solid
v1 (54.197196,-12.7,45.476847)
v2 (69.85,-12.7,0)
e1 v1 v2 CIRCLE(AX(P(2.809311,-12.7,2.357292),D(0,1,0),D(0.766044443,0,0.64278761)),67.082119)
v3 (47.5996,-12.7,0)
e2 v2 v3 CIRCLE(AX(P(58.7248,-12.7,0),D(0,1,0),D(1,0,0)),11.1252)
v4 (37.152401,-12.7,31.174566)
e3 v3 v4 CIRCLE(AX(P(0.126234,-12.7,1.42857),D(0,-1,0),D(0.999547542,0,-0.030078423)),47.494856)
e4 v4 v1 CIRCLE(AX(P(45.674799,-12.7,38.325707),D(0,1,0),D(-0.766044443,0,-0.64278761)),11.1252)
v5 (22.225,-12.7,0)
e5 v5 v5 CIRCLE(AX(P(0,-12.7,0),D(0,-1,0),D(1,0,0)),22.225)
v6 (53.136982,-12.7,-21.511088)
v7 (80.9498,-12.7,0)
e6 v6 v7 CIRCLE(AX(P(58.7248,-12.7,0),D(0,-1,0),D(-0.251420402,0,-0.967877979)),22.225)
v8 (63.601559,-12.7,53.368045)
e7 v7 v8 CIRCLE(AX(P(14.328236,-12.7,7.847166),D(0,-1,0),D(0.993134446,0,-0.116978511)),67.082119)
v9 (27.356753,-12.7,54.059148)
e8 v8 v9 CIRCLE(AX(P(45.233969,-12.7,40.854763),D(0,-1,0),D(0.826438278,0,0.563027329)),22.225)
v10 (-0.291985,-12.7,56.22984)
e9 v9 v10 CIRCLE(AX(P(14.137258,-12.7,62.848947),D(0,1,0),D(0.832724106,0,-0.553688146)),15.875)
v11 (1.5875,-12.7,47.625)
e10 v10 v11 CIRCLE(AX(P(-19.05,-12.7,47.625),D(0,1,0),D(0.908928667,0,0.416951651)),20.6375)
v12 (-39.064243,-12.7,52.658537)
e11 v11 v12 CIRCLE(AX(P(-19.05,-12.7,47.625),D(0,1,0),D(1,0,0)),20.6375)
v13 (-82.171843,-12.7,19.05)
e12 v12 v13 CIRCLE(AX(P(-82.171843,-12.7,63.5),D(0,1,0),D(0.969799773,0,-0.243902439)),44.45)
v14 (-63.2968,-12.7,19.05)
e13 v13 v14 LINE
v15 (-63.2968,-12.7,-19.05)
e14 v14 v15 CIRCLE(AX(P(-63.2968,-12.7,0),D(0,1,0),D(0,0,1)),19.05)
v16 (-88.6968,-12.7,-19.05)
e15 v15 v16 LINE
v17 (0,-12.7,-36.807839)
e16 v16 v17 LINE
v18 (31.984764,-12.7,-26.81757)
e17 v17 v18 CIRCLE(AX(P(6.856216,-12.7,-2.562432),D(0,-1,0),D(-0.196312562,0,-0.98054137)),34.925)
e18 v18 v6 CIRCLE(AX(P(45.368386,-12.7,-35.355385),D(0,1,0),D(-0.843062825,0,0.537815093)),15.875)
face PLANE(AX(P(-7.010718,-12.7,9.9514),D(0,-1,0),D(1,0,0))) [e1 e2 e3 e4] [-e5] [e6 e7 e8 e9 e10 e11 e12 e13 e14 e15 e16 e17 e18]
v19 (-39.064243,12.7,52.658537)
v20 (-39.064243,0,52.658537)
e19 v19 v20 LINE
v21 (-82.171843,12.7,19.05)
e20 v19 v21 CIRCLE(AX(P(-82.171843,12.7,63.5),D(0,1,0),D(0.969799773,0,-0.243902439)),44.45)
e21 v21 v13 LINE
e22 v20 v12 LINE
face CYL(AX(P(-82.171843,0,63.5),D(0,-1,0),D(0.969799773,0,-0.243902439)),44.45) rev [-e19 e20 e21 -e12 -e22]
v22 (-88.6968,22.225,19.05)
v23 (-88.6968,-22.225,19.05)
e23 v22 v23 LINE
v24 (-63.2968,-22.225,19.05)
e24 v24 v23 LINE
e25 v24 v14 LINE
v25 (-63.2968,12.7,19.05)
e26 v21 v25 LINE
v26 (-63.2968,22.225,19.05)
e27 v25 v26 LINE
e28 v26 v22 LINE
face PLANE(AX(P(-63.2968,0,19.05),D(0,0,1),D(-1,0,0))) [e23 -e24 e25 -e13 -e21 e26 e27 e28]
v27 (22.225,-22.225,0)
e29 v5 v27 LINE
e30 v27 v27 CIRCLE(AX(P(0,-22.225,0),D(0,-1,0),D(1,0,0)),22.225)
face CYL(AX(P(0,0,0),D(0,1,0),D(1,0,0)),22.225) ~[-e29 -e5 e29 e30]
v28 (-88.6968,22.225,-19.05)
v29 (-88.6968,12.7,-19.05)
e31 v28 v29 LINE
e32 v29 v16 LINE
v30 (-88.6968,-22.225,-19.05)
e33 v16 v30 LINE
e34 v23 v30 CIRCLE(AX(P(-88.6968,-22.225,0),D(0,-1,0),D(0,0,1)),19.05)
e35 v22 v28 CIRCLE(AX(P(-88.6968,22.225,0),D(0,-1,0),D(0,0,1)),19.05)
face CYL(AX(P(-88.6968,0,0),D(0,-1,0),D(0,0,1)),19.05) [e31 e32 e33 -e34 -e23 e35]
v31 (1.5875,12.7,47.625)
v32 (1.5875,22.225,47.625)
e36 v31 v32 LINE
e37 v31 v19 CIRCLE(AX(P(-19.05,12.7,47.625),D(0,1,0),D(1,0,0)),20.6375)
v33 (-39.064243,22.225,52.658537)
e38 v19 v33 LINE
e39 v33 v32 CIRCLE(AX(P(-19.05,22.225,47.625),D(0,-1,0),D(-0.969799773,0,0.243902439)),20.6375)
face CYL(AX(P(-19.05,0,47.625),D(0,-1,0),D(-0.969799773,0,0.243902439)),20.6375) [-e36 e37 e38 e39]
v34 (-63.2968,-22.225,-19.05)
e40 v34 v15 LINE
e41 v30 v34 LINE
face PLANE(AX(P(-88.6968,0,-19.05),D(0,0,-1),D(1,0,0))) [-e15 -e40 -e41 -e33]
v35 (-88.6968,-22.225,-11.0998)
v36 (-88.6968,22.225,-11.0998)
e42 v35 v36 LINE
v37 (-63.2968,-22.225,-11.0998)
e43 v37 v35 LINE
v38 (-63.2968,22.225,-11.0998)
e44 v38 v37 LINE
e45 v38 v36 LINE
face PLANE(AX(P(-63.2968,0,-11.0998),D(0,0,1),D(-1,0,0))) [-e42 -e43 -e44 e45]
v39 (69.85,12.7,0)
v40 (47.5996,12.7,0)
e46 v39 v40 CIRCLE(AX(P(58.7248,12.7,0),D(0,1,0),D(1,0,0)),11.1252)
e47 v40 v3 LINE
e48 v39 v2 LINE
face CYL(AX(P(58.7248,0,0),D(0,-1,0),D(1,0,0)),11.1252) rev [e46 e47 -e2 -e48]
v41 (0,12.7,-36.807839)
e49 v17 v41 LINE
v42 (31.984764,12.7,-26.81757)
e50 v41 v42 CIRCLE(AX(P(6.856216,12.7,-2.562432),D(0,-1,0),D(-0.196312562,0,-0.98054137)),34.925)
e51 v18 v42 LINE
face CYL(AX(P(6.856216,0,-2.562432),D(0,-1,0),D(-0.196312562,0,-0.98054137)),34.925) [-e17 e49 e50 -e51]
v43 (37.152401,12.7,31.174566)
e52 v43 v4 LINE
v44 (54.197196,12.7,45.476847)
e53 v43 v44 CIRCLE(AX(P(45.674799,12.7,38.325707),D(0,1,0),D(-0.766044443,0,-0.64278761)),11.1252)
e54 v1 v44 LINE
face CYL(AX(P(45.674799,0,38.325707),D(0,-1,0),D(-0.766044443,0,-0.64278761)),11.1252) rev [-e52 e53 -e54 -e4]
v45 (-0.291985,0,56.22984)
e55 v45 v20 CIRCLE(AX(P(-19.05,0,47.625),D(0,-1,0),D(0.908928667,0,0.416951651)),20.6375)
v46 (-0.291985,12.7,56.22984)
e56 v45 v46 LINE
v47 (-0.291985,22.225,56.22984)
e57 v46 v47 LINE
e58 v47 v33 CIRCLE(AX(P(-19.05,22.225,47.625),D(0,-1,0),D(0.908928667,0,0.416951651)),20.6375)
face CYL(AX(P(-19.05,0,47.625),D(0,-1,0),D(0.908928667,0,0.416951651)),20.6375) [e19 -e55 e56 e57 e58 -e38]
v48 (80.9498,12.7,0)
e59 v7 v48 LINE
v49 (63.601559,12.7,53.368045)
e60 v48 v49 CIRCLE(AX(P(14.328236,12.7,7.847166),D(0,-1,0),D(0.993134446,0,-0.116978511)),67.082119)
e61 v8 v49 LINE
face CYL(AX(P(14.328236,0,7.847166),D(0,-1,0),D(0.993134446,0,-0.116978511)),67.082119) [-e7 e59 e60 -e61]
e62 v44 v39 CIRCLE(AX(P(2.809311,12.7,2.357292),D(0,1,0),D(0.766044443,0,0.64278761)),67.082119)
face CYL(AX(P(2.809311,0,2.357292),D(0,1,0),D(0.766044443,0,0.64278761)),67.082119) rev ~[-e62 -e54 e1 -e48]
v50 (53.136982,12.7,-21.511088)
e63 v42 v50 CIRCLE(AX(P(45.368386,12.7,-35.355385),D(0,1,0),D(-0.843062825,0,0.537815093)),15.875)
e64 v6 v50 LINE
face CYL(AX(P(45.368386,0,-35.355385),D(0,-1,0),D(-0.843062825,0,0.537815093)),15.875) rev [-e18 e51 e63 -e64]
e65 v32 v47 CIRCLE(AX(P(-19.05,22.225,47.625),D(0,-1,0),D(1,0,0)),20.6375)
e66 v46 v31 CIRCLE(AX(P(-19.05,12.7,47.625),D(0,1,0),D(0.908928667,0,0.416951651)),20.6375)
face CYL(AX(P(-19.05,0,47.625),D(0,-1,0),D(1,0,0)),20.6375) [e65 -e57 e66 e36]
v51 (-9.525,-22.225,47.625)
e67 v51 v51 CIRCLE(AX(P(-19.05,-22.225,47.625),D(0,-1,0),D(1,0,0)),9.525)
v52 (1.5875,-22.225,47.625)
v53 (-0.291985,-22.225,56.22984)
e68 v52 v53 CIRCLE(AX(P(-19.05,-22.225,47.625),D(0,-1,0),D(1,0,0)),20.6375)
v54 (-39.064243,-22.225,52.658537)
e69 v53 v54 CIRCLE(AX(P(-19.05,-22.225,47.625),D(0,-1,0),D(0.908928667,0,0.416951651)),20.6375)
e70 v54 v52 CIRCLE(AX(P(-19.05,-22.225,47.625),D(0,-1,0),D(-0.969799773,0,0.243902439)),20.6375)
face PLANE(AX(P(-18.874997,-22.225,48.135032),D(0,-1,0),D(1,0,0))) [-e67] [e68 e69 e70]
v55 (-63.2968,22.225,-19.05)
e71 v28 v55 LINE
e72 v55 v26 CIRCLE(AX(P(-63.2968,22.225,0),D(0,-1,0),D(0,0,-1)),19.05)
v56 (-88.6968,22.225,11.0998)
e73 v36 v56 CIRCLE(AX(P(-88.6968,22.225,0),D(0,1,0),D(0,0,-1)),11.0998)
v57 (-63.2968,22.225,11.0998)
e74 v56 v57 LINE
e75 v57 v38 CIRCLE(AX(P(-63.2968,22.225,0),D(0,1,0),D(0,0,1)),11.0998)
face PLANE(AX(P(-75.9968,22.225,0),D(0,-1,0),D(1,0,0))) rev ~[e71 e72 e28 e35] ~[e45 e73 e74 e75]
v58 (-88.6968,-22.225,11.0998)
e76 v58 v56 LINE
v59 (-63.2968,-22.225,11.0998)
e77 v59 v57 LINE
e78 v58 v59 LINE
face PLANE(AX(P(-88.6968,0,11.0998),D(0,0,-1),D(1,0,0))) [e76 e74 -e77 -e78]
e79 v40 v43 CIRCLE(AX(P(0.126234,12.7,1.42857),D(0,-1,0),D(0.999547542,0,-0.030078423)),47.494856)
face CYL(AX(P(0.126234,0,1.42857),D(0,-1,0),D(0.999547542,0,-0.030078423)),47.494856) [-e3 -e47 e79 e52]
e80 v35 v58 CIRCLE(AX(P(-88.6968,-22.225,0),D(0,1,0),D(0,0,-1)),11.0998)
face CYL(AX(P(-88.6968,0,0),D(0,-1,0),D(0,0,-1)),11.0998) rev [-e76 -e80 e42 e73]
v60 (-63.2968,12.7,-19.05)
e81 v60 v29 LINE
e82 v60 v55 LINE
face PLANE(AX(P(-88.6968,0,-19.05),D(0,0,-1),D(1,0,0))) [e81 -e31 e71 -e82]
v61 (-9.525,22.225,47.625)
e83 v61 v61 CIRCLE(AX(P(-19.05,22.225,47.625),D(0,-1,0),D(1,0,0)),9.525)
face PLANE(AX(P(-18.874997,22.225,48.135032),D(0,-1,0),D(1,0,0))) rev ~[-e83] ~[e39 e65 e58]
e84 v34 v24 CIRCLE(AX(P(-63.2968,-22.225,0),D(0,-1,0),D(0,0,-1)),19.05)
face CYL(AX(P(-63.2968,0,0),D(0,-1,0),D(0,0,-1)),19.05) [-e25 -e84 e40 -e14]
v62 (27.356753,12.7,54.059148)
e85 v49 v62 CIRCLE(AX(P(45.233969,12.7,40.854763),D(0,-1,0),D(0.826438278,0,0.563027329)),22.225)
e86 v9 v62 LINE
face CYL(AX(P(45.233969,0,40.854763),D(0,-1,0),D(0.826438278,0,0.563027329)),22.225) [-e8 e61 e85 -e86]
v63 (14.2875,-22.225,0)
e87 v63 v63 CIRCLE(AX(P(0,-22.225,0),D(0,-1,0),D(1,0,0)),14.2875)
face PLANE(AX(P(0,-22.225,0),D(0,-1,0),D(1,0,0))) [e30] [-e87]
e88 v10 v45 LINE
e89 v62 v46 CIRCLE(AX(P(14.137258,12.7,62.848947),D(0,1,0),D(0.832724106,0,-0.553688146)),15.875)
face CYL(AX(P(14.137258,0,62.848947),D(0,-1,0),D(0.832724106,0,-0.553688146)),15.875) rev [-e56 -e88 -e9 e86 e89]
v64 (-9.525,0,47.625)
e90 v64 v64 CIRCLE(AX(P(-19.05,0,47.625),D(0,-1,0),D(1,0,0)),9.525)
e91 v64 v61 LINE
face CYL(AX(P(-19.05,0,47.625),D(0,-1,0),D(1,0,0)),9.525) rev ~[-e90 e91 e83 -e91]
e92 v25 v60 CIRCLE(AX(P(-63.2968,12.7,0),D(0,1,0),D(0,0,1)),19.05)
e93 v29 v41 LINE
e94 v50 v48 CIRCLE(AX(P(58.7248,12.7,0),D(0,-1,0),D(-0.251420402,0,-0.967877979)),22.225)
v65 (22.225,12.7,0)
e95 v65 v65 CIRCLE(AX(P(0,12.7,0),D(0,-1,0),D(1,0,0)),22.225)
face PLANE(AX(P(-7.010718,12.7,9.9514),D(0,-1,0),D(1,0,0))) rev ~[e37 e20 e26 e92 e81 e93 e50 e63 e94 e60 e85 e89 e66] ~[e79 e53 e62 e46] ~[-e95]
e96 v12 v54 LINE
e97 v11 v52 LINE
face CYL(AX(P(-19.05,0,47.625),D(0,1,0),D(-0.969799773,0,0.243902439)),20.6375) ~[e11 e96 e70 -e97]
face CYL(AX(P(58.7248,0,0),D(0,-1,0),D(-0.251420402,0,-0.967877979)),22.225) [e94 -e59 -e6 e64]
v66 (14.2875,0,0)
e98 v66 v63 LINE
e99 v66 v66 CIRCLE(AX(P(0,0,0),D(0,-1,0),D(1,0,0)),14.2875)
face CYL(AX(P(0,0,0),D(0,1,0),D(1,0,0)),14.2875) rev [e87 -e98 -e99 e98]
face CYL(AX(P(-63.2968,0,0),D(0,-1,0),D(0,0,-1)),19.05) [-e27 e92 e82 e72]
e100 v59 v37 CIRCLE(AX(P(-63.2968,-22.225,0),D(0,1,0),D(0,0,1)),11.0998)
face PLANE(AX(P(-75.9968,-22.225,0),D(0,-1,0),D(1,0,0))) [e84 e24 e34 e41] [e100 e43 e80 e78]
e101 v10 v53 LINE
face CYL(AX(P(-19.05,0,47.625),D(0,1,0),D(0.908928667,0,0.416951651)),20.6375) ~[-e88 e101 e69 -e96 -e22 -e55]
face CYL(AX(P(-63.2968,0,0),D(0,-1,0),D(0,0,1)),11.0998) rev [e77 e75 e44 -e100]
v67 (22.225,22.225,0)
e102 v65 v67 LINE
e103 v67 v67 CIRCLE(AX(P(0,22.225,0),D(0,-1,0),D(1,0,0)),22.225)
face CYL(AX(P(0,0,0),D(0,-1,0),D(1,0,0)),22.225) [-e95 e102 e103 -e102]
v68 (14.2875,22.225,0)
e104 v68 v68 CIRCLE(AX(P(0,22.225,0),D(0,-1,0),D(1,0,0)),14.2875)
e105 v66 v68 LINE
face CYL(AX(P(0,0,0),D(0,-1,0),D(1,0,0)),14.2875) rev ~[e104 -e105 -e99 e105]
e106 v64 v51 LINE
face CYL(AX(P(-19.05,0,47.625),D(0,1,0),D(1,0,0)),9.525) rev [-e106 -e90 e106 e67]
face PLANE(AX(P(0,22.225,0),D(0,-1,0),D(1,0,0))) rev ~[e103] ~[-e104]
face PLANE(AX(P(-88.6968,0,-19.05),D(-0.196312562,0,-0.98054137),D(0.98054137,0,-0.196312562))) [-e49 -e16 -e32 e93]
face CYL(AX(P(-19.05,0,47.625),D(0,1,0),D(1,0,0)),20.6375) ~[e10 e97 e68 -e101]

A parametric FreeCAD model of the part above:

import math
import FreeCAD as App
import Part
import Sketcher
from FreeCAD import Vector
Q = App.Units.Quantity

doc = App.newDocument("Part")
body = doc.addObject("PartDesign::Body", "Body")

# Sketch on XZ plane
sketch1 = body.newObject("Sketcher::SketchObject", "Sketch")
sketch1.AttachmentSupport = (doc.getObject("XZ_Plane"), [""])
sketch1.MapMode = "FlatFace"
sketch1.addGeometry([
    Part.ArcOfCircle(Part.Circle(Vector(-19.05, 47.625, 0), Vector(0, 0, 1), 20.6375), math.radians(0), math.radians(24.642281)),  # 0
    Part.ArcOfCircle(Part.Circle(Vector(-19.05, 47.625, 0), Vector(0, 0, 1), 20.6375), math.radians(165.883019), math.radians(360)),  # 1
    Part.ArcOfCircle(Part.Circle(Vector(-82.171843, 63.5, 0), Vector(0, 0, 1), 44.45), math.radians(-90), math.radians(-14.116981)),  # 2
    Part.LineSegment(Vector(-82.171843, 19.05, 0), Vector(-63.2968, 19.05, 0)),  # 3
    Part.ArcOfCircle(Part.Circle(Vector(-63.2968, 0, 0), Vector(0, 0, 1), 19.05), math.radians(-90), math.radians(90)),  # 4
    Part.LineSegment(Vector(-63.2968, -19.05, 0), Vector(-88.6968, -19.05, 0)),  # 5
    Part.LineSegment(Vector(-88.6968, -19.05, 0), Vector(0, -36.807839, 0)),  # 6
    Part.ArcOfCircle(Part.Circle(Vector(6.856216, -2.562432, 0), Vector(0, 0, 1), 34.925), math.radians(-101.32141), math.radians(-43.986762)),  # 7
    Part.ArcOfCircle(Part.Circle(Vector(45.368386, -35.355385, 0), Vector(0, 0, 1), 15.875), math.radians(60.701452), math.radians(147.464974)),  # 8
    Part.ArcOfCircle(Part.Circle(Vector(58.7248, 0, 0), Vector(0, 0, 1), 22.225), math.radians(-104.56158), math.radians(0)),  # 9
    Part.ArcOfCircle(Part.Circle(Vector(14.328236, 7.847166, 0), Vector(0, 0, 1), 67.082119), math.radians(-6.717756), math.radians(42.733121)),  # 10
    Part.ArcOfCircle(Part.Circle(Vector(45.233969, 40.854763, 0), Vector(0, 0, 1), 22.225), math.radians(34.265417), math.radians(143.549857)),  # 11
    Part.ArcOfCircle(Part.Circle(Vector(14.137258, 62.848947, 0), Vector(0, 0, 1), 15.875), math.radians(-155.357719), math.radians(-33.620405)),  # 12
    Part.Circle(Vector(0, 0, 0), Vector(0, 0, 1), 22.225),  # 13
    Part.ArcOfCircle(Part.Circle(Vector(45.674799, 38.325707, 0), Vector(0, 0, 1), 11.1252), math.radians(40), math.radians(220)),  # 14
    Part.ArcOfCircle(Part.Circle(Vector(2.809311, 2.357292, 0), Vector(0, 0, 1), 67.082119), math.radians(-2.013811), math.radians(40)),  # 15
    Part.ArcOfCircle(Part.Circle(Vector(58.7248, 0, 0), Vector(0, 0, 1), 11.1252), math.radians(180), math.radians(360)),  # 16
    Part.ArcOfCircle(Part.Circle(Vector(0.126234, 1.42857, 0), Vector(0, 0, 1), 47.494856), math.radians(-1.723627), math.radians(38.777617)),  # 17
], False)
sketch1.addConstraint([
    Sketcher.Constraint("Tangent", 0, 1, 1, 2),
    Sketcher.Constraint("Tangent", 1, 1, 2, 2),
    Sketcher.Constraint("Tangent", 2, 1, 3, 1),
    Sketcher.Constraint("Tangent", 3, 2, 4, 2),
    Sketcher.Constraint("Tangent", 4, 1, 5, 1),
    Sketcher.Constraint("Coincident", 5, 2, 6, 1),
    Sketcher.Constraint("Tangent", 6, 2, 7, 1),
    Sketcher.Constraint("Coincident", 7, 2, 8, 2),
    Sketcher.Constraint("Coincident", 8, 1, 9, 1),
    Sketcher.Constraint("Coincident", 9, 2, 10, 1),
    Sketcher.Constraint("Coincident", 10, 2, 11, 1),
    Sketcher.Constraint("Coincident", 11, 2, 12, 2),
    Sketcher.Constraint("Tangent", 12, 1, 0, 2),
    Sketcher.Constraint("Tangent", 14, 1, 15, 2),
    Sketcher.Constraint("Coincident", 15, 1, 16, 2),
    Sketcher.Constraint("Coincident", 16, 1, 17, 1),
    Sketcher.Constraint("Coincident", 17, 2, 14, 2),
    Sketcher.Constraint("Horizontal", 3),
    Sketcher.Constraint("Horizontal", 5),
    Sketcher.Constraint("Coincident", 13, 3, -1, 1),
    Sketcher.Constraint("Coincident", 16, 3, 9, 3),
    Sketcher.Constraint("Equal", 0, 1),
    Sketcher.Constraint("Equal", 9, 11),
    Sketcher.Constraint("Equal", 8, 12),
    Sketcher.Constraint("Equal", 11, 13),
    Sketcher.Constraint("Equal", 10, 15),
    Sketcher.Constraint("Equal", 14, 16),
    Sketcher.Constraint("PointOnObject", 4, 3, -1),
    Sketcher.Constraint("PointOnObject", 9, 3, -1),
    Sketcher.Constraint("PointOnObject", 6, 2, -2),
    Sketcher.Constraint("PointOnObject", 9, 2, -1),
    Sketcher.Constraint("PointOnObject", 15, 1, -1),
    Sketcher.Constraint("PointOnObject", 16, 1, -1),
    Sketcher.Constraint("Horizontal", 1, 3, 0, 1),
    Sketcher.Constraint("Diameter", 13, Q("1.75 in")),
    Sketcher.Constraint("DistanceX", 5, 2, 5, 1, Q("1 in")),
    Sketcher.Constraint("Radius", 2, Q("1.75 in")),
    Sketcher.Constraint("Radius", 4, Q("0.75 in")),
    Sketcher.Constraint("Radius", 0, Q("0.8125 in")),
    Sketcher.Constraint("Radius", 7, Q("1.375 in")),
    Sketcher.Constraint("Radius", 8, Q("0.625 in")),
    Sketcher.Constraint("Radius", 14, Q("0.438 in")),
    Sketcher.Constraint("DistanceX", 0, 3, -1, 1, Q("0.75 in")),
    Sketcher.Constraint("DistanceX", -1, 1, 15, 1, Q("2.75 in")),
    Sketcher.Constraint("DistanceY", -1, 1, 0, 3, Q("1.875 in")),
    Sketcher.Constraint("DistanceX", 4, 3, -1, 1, Q("2.492 in")),
    Sketcher.Constraint("Radius", 10, Q("67.082119 mm")),
    Sketcher.Constraint("Radius", 17, Q("47.494856 mm")),
    Sketcher.Constraint("DistanceX", -1, 1, 14, 3, Q("45.674799 mm")),
    Sketcher.Constraint("DistanceX", -1, 1, 17, 2, Q("37.152401 mm")),
    Sketcher.Constraint("DistanceY", 7, 3, 10, 3, Q("10.409598 mm")),
    Sketcher.Constraint("DistanceX", 1, 1, 12, 3, Q("53.201501 mm")),
    Sketcher.Constraint("DistanceX", 12, 3, 10, 2, Q("49.464302 mm")),
    Sketcher.Constraint("DistanceY", 11, 2, 12, 3, Q("8.789799 mm")),
    Sketcher.Constraint("DistanceY", 14, 1, 11, 2, Q("8.5823 mm")),
    Sketcher.Constraint("DistanceY", 10, 3, 17, 2, Q("23.3274 mm")),
    Sketcher.Constraint("DistanceY", 7, 2, -1, 1, Q("26.81757 mm")),
    Sketcher.Constraint("DistanceX", -1, 1, 8, 1, Q("53.136982 mm")),
])
pad1 = body.newObject("PartDesign::Pad", "Pad")
pad1.Profile = sketch1
pad1.Length = Q("1 in")
pad1.Midplane = True

# Sketch on XZ plane
sketch2 = body.newObject("Sketcher::SketchObject", "Sketch001")
sketch2.AttachmentSupport = (doc.getObject("XZ_Plane"), [""])
sketch2.MapMode = "FlatFace"
sketch2.addGeometry([
    Part.ArcOfCircle(Part.Circle(Vector(-19.05, 47.625, 0), Vector(0, 0, 1), 20.6375), math.radians(165.883019), math.radians(360)),  # 0
    Part.ArcOfCircle(Part.Circle(Vector(-19.05, 47.625, 0), Vector(0, 0, 1), 20.6375), math.radians(0), math.radians(24.642281)),  # 1
    Part.ArcOfCircle(Part.Circle(Vector(-19.05, 47.625, 0), Vector(0, 0, 1), 20.6375), math.radians(24.642281), math.radians(165.883019)),  # 2
    Part.Circle(Vector(-19.05, 47.625, 0), Vector(0, 0, 1), 9.525),  # 3
    Part.Circle(Vector(0, 0, 0), Vector(0, 0, 1), 22.225),  # 4
    Part.Circle(Vector(0, 0, 0), Vector(0, 0, 1), 14.2875),  # 5
    Part.LineSegment(Vector(-63.2968, 19.05, 0), Vector(-88.6968, 19.05, 0)),  # 6
    Part.ArcOfCircle(Part.Circle(Vector(-88.6968, 0, 0), Vector(0, 0, 1), 19.05), math.radians(90), math.radians(270)),  # 7
    Part.LineSegment(Vector(-88.6968, -19.05, 0), Vector(-63.2968, -19.05, 0)),  # 8
    Part.ArcOfCircle(Part.Circle(Vector(-63.2968, 0, 0), Vector(0, 0, 1), 19.05), math.radians(-90), math.radians(90)),  # 9
    Part.ArcOfCircle(Part.Circle(Vector(-63.2968, 0, 0), Vector(0, 0, 1), 11.0998), math.radians(-90), math.radians(90)),  # 10
    Part.LineSegment(Vector(-63.2968, -11.0998, 0), Vector(-88.6968, -11.0998, 0)),  # 11
    Part.ArcOfCircle(Part.Circle(Vector(-88.6968, 0, 0), Vector(0, 0, 1), 11.0998), math.radians(90), math.radians(270)),  # 12
    Part.LineSegment(Vector(-88.6968, 11.0998, 0), Vector(-63.2968, 11.0998, 0)),  # 13
], False)
sketch2.addConstraint([
    Sketcher.Constraint("Tangent", 0, 2, 1, 1),
    Sketcher.Constraint("Tangent", 1, 2, 2, 1),
    Sketcher.Constraint("Tangent", 2, 2, 0, 1),
    Sketcher.Constraint("Tangent", 6, 2, 7, 1),
    Sketcher.Constraint("Tangent", 7, 2, 8, 1),
    Sketcher.Constraint("Tangent", 8, 2, 9, 1),
    Sketcher.Constraint("Tangent", 9, 2, 6, 1),
    Sketcher.Constraint("Tangent", 10, 1, 11, 1),
    Sketcher.Constraint("Tangent", 11, 2, 12, 2),
    Sketcher.Constraint("Tangent", 12, 1, 13, 1),
    Sketcher.Constraint("Tangent", 13, 2, 10, 2),
    Sketcher.Constraint("Horizontal", 6),
    Sketcher.Constraint("Horizontal", 8),
    Sketcher.Constraint("Horizontal", 11),
    Sketcher.Constraint("Horizontal", 13),
    Sketcher.Constraint("Coincident", 4, 3, -1, 1),
    Sketcher.Constraint("Coincident", 5, 3, -1, 1),
    Sketcher.Constraint("Coincident", 3, 3, 0, 3),
    Sketcher.Constraint("Coincident", 10, 3, 9, 3),
    Sketcher.Constraint("PointOnObject", 7, 3, -1),
    Sketcher.Constraint("Horizontal", 3, 3, 0, 2),
    Sketcher.Constraint("Vertical", 12, 3, 6, 2),
    Sketcher.Constraint("Diameter", 3, Q("0.75 in")),
    Sketcher.Constraint("Diameter", 4, Q("1.75 in")),
    Sketcher.Constraint("DistanceX", 6, 2, 6, 1, Q("1 in")),
    Sketcher.Constraint("Radius", 7, Q("0.75 in")),
    Sketcher.Constraint("Diameter", 5, Q("1.125 in")),
    Sketcher.Constraint("Radius", 0, Q("0.8125 in")),
    Sketcher.Constraint("Radius", 10, Q("0.437 in")),
    Sketcher.Constraint("DistanceX", 0, 3, -1, 1, Q("0.75 in")),
    Sketcher.Constraint("DistanceY", -1, 1, 0, 3, Q("1.875 in")),
    Sketcher.Constraint("DistanceX", 7, 3, -1, 1, Q("3.492 in")),
    Sketcher.Constraint("DistanceY", -1, 1, 1, 2, Q("56.22984 mm")),
    Sketcher.Constraint("DistanceX", 2, 2, 1, 2, Q("38.772258 mm")),
])
pad2 = body.newObject("PartDesign::Pad", "Pad001")
pad2.Profile = sketch2
pad2.Length = Q("1.75 in")
pad2.Midplane = True

doc.recompute()
